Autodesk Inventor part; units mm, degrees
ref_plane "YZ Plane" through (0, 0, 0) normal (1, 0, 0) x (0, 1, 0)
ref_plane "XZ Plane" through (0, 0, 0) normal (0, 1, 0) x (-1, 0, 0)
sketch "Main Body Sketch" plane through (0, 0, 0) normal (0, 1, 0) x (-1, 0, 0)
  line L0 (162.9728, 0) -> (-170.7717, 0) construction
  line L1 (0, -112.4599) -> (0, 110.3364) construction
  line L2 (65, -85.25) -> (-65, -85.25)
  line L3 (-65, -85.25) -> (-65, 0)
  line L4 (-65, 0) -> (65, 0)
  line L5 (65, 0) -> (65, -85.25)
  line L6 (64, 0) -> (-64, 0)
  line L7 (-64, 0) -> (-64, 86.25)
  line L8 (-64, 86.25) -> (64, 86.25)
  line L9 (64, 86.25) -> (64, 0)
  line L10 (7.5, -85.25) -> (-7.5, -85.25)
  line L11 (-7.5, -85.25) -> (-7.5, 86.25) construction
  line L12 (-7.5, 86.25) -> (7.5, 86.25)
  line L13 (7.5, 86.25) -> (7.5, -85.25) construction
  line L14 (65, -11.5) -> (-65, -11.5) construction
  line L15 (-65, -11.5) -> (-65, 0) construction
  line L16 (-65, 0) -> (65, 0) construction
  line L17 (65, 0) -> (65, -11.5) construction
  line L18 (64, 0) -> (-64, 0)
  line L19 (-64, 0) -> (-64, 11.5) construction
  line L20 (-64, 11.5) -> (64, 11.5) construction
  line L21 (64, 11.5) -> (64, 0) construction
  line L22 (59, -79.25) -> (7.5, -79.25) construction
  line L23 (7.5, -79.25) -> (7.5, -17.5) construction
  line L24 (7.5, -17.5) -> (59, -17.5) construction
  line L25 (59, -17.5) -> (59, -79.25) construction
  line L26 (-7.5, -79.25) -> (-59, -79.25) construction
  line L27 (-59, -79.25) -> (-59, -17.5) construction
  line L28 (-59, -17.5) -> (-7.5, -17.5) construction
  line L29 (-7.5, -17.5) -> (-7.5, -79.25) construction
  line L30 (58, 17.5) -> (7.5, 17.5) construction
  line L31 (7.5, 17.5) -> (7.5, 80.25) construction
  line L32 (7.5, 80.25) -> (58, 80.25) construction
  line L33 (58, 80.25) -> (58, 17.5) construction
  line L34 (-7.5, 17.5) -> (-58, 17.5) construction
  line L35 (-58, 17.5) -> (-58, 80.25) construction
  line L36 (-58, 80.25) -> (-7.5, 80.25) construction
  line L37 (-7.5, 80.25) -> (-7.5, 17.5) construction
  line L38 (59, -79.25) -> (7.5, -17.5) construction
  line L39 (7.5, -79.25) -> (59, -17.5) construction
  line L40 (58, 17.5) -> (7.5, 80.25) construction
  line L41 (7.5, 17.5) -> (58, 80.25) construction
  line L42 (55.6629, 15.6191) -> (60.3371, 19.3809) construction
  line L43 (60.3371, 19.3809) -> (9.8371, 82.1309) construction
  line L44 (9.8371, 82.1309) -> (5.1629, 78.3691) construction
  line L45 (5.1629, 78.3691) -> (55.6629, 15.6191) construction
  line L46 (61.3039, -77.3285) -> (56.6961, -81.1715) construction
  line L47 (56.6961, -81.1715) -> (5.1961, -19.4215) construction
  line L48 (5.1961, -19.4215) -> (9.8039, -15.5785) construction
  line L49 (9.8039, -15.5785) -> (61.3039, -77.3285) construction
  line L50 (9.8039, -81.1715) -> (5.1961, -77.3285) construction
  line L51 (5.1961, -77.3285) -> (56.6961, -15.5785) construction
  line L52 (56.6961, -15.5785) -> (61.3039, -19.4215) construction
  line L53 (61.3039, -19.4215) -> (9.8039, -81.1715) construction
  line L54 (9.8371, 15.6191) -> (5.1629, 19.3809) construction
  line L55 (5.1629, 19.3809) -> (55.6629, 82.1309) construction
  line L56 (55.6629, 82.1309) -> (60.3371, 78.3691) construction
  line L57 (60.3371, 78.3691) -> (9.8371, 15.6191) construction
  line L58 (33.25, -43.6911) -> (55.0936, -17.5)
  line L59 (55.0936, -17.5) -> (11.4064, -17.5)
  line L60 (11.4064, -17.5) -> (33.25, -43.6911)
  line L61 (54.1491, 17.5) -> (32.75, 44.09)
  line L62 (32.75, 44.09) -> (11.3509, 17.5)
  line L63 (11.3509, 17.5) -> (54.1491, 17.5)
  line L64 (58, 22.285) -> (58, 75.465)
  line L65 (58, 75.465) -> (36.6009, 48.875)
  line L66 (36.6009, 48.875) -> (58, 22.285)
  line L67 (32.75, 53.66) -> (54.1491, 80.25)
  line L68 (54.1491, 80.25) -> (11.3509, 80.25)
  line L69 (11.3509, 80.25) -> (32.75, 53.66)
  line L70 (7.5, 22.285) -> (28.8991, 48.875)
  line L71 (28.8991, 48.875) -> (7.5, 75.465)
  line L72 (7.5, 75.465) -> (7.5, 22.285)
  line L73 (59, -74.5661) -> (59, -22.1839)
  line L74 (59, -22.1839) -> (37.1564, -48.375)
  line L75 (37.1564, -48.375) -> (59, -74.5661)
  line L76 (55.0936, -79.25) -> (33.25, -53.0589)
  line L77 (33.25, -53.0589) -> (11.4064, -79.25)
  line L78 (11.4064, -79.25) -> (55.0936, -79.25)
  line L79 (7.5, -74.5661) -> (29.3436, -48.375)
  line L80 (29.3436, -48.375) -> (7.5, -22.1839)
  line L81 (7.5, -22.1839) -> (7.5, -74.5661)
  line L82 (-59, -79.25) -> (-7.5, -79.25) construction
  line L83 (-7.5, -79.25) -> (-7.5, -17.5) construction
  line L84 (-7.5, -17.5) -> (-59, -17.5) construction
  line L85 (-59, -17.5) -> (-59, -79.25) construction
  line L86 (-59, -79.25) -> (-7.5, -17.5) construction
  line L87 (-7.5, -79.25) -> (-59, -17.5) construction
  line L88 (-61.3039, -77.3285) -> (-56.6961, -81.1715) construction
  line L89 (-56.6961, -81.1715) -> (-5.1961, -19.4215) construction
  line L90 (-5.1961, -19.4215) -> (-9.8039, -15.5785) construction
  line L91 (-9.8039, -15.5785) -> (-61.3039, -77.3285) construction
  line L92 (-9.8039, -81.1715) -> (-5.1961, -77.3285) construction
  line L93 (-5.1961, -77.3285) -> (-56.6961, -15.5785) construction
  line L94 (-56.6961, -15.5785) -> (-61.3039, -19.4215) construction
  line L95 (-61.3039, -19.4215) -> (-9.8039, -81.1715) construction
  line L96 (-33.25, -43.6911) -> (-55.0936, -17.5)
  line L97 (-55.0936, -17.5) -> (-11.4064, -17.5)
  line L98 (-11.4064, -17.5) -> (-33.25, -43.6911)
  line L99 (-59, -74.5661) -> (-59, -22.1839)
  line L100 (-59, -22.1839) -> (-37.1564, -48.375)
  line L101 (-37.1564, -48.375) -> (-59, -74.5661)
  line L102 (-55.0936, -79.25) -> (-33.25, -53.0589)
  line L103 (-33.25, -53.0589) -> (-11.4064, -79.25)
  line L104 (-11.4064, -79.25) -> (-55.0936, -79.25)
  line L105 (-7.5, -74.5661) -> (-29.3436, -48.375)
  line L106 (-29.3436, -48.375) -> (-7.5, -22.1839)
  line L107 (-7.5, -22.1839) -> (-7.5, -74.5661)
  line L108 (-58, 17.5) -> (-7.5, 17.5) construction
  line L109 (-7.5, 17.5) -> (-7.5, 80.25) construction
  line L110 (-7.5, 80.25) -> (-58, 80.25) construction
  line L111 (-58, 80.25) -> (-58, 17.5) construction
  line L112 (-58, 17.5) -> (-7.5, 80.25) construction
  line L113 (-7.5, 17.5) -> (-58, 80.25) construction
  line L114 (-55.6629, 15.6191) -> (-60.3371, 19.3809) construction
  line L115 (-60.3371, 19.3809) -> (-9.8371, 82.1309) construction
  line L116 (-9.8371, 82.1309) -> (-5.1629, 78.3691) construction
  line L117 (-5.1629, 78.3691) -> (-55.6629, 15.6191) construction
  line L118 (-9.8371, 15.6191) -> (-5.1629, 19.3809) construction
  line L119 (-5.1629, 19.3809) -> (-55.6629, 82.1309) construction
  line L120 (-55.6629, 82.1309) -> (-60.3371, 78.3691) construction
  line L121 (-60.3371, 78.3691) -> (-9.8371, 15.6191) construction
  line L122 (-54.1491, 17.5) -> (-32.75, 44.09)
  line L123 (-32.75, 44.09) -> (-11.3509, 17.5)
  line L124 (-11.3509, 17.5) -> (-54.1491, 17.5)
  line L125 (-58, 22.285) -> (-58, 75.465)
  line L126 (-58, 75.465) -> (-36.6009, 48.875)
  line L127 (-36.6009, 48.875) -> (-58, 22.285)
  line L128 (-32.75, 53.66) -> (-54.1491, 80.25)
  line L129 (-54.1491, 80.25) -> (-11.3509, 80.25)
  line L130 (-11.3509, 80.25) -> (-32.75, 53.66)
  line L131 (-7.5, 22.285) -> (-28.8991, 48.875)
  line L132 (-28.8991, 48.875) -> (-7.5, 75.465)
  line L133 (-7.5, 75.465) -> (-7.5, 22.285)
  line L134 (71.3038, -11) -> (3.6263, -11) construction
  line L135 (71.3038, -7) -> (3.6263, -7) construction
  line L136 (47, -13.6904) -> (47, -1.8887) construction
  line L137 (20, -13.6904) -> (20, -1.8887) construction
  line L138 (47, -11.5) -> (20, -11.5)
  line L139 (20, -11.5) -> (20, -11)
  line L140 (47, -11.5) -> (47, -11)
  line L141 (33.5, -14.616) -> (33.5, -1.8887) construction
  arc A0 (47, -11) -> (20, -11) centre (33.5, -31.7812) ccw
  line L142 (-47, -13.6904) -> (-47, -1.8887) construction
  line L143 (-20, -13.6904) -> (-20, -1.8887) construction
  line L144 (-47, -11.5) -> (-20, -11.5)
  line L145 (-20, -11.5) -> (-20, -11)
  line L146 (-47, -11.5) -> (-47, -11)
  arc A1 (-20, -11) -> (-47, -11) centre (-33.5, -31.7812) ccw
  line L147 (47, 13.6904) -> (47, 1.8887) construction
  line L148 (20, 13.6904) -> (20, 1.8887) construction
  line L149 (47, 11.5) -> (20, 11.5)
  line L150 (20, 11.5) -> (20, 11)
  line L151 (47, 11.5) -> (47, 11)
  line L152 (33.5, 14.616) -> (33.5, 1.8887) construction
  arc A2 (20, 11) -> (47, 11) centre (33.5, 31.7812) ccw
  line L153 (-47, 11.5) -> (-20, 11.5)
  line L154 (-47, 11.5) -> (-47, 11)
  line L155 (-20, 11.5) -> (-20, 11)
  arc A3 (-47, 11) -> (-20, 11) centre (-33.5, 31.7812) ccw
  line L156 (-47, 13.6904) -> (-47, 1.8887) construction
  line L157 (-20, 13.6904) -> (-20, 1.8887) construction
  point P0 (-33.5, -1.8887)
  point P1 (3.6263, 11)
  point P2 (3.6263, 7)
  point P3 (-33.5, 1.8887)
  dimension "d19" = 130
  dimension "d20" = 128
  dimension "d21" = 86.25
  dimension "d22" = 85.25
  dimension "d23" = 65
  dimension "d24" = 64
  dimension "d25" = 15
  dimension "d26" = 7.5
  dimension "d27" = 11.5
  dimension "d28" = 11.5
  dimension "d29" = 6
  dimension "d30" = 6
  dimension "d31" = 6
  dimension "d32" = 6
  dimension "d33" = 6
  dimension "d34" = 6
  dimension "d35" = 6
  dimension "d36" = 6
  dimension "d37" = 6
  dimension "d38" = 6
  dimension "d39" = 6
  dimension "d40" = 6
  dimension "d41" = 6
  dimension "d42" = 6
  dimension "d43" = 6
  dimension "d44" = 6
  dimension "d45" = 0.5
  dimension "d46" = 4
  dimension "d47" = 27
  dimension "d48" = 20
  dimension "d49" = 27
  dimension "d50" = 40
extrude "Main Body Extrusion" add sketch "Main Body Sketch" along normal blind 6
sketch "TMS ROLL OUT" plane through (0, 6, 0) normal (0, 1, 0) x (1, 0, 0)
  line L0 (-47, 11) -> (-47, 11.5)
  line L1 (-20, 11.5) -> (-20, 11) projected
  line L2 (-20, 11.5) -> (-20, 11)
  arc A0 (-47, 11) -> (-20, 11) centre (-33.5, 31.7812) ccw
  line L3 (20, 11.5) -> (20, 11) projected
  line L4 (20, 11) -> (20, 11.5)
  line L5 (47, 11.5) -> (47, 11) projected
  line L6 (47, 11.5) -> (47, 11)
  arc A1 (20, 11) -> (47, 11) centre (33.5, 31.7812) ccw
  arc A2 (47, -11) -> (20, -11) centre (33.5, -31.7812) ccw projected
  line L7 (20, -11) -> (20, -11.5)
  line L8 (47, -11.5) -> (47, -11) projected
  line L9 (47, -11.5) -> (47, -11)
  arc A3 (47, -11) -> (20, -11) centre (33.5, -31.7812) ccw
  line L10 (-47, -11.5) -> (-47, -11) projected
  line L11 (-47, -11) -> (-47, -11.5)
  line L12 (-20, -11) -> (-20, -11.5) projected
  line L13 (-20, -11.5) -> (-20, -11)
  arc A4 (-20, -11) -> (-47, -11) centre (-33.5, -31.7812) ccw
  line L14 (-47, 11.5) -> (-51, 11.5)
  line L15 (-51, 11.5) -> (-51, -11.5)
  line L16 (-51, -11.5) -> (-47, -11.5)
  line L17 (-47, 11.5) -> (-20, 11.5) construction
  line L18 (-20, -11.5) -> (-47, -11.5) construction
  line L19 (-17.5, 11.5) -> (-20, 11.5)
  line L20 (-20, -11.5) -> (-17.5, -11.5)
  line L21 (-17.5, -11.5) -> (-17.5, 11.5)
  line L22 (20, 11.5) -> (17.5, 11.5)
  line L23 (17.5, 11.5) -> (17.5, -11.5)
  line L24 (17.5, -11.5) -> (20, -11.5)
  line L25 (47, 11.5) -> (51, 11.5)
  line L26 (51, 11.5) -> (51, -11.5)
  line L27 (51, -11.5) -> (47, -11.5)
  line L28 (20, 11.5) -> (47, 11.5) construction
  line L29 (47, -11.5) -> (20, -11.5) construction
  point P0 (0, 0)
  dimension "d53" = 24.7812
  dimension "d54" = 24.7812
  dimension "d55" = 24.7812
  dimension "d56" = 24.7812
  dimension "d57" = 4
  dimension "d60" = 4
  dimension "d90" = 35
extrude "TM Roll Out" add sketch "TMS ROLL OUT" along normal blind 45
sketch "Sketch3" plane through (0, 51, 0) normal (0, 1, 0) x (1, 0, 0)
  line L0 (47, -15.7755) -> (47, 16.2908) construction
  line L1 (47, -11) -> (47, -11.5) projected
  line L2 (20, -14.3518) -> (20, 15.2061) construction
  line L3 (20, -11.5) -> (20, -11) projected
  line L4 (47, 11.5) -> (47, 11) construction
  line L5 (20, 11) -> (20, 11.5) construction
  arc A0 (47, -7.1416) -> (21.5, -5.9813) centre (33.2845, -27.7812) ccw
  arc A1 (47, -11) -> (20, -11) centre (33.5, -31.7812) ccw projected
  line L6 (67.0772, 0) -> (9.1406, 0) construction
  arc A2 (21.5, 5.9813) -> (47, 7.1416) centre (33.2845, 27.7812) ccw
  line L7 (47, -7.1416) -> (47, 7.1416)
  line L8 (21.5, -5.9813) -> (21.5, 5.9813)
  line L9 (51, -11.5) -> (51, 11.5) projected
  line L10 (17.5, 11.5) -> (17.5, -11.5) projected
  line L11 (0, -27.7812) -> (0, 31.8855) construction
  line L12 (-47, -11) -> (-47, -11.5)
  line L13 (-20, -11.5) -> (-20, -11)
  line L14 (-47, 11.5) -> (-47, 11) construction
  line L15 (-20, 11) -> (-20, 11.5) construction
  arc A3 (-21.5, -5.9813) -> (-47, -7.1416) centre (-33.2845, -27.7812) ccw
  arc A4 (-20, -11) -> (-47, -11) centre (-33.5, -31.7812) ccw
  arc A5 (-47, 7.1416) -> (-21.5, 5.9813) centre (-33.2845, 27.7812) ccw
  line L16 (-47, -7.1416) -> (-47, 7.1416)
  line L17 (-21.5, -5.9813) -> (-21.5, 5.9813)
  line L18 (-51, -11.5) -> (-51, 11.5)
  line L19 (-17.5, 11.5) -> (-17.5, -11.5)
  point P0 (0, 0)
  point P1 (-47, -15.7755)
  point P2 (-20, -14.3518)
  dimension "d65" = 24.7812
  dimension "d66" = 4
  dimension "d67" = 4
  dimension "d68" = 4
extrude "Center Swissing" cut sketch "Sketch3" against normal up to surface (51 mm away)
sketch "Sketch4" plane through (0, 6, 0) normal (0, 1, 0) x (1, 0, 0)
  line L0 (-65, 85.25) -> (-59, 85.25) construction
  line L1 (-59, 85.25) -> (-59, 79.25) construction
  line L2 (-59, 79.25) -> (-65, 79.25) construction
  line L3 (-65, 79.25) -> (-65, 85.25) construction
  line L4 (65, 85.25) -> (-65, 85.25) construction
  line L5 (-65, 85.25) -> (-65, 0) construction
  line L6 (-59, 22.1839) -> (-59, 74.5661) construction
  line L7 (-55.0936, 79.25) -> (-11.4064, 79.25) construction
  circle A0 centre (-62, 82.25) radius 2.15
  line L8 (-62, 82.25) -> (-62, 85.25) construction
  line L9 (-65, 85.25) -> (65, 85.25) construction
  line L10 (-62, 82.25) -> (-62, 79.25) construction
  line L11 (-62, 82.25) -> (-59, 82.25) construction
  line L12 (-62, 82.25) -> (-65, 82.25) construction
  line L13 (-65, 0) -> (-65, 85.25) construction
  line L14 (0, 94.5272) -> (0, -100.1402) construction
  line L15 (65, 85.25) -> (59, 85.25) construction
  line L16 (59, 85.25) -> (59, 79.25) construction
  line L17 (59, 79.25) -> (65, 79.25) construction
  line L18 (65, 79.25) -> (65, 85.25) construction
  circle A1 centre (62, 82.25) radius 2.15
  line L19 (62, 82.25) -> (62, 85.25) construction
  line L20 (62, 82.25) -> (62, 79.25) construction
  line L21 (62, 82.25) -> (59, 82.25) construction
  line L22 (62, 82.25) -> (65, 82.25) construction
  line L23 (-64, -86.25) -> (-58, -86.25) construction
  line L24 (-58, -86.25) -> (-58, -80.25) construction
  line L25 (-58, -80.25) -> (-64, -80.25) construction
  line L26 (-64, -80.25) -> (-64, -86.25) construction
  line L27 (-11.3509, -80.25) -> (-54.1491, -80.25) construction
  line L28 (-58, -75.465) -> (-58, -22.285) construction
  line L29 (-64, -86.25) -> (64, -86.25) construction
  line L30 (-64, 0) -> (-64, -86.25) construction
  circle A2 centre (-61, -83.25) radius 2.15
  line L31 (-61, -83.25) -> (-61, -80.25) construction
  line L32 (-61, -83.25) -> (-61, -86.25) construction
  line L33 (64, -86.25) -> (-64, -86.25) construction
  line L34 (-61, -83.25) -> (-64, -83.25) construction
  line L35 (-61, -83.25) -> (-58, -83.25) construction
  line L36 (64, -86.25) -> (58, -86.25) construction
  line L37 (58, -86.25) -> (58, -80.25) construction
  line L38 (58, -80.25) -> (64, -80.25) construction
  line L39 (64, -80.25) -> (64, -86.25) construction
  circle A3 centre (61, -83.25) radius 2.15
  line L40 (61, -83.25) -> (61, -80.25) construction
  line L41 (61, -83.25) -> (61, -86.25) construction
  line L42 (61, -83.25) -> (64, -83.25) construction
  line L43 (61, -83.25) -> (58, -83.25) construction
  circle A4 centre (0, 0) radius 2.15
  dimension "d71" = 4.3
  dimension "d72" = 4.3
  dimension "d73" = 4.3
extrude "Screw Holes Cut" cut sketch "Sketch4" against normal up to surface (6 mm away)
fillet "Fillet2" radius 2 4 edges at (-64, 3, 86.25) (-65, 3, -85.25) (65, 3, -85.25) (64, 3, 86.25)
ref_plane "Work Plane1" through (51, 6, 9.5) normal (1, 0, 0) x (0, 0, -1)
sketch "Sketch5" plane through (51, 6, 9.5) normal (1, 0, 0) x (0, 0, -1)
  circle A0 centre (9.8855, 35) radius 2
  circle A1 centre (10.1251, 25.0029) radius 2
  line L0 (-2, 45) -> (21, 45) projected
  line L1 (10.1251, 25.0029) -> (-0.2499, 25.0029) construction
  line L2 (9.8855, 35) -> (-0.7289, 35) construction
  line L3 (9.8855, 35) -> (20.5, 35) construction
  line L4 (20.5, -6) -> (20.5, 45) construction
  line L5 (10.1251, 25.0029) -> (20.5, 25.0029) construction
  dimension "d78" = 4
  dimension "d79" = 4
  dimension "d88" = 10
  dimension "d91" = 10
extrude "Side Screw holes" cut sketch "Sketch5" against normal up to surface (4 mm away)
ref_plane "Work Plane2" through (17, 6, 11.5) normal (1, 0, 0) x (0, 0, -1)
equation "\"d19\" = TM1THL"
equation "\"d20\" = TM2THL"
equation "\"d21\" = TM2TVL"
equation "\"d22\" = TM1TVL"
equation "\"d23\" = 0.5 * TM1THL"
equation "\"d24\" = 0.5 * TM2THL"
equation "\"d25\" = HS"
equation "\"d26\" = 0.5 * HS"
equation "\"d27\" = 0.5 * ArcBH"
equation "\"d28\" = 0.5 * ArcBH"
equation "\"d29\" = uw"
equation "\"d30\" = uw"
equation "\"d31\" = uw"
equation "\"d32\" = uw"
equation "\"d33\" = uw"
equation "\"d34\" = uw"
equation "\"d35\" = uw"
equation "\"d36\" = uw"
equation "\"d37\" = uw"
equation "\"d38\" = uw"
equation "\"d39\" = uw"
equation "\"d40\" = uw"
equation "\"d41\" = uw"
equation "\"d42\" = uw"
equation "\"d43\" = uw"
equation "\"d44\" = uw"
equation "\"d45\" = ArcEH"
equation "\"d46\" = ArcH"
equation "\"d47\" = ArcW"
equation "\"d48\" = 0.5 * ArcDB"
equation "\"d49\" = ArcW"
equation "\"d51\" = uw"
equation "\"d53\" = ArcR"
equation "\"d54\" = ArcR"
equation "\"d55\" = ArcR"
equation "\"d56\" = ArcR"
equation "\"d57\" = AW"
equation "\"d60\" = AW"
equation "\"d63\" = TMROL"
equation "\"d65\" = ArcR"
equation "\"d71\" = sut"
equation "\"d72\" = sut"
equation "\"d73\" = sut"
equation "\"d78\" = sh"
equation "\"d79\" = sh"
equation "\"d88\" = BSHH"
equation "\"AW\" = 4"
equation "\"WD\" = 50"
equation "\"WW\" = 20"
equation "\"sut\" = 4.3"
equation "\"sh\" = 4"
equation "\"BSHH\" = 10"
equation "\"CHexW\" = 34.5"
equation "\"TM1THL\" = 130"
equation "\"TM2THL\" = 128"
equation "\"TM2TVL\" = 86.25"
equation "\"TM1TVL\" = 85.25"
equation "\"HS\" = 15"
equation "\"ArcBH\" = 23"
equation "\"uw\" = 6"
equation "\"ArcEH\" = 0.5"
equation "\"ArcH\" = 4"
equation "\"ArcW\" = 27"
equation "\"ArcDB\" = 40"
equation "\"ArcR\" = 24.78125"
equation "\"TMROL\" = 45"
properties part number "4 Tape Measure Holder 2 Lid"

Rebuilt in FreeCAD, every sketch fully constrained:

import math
import FreeCAD as App
import Part
import Sketcher


def edges_at(feature, points):
    """Names of the edges that pass closest to the given points."""
    edges = feature.Shape.Edges
    near = lambda p: min(range(len(edges)), key=lambda i: edges[i].distToShape(Part.Vertex(*p))[0])
    return sorted({f"Edge{near(p) + 1}" for p in points})

doc = App.newDocument("Part")
body = doc.addObject("PartDesign::Body", "Body")

sketch1 = body.newObject("Sketcher::SketchObject", "Sketch")
sketch1.AttachmentSupport = (doc.getObject("XZ_Plane"), [""])
sketch1.MapMode = "FlatFace"
sketch1.addGeometry(Part.LineSegment(App.Vector(-65, -85.2, 0), App.Vector(-65, 0, 0)), False)
sketch1.addGeometry(Part.LineSegment(App.Vector(-65, 0, 0), App.Vector(-64, 0, 0)), False)
sketch1.addGeometry(Part.LineSegment(App.Vector(-64, 0, 0), App.Vector(-64, 86.2, 0)), False)
sketch1.addGeometry(Part.LineSegment(App.Vector(-64, 86.2, 0), App.Vector(64, 86.2, 0)), False)
sketch1.addGeometry(Part.LineSegment(App.Vector(64, 86.2, 0), App.Vector(64, 0, 0)), False)
sketch1.addGeometry(Part.LineSegment(App.Vector(64, 0, 0), App.Vector(65, 0, 0)), False)
sketch1.addGeometry(Part.LineSegment(App.Vector(65, 0, 0), App.Vector(65, -85.2, 0)), False)
sketch1.addGeometry(Part.LineSegment(App.Vector(65, -85.2, 0), App.Vector(-65, -85.2, 0)), False)
sketch1.addGeometry(Part.LineSegment(App.Vector(11.4, -79.2, 0), App.Vector(55.1, -79.2, 0)), False)
sketch1.addGeometry(Part.LineSegment(App.Vector(55.1, -79.2, 0), App.Vector(33.2, -53.1, 0)), False)
sketch1.addGeometry(Part.LineSegment(App.Vector(33.2, -53.1, 0), App.Vector(11.4, -79.2, 0)), False)
sketch1.addGeometry(Part.LineSegment(App.Vector(37.2, -48.4, 0), App.Vector(59, -74.6, 0)), False)
sketch1.addGeometry(Part.LineSegment(App.Vector(59, -74.6, 0), App.Vector(59, -22.2, 0)), False)
sketch1.addGeometry(Part.LineSegment(App.Vector(59, -22.2, 0), App.Vector(37.2, -48.4, 0)), False)
sketch1.addGeometry(Part.LineSegment(App.Vector(7.5, -22.2, 0), App.Vector(7.5, -74.6, 0)), False)
sketch1.addGeometry(Part.LineSegment(App.Vector(7.5, -74.6, 0), App.Vector(29.3, -48.4, 0)), False)
sketch1.addGeometry(Part.LineSegment(App.Vector(29.3, -48.4, 0), App.Vector(7.5, -22.2, 0)), False)
sketch1.addGeometry(Part.LineSegment(App.Vector(11.4, -17.5, 0), App.Vector(33.2, -43.7, 0)), False)
sketch1.addGeometry(Part.LineSegment(App.Vector(33.2, -43.7, 0), App.Vector(55.1, -17.5, 0)), False)
sketch1.addGeometry(Part.LineSegment(App.Vector(55.1, -17.5, 0), App.Vector(11.4, -17.5, 0)), False)
sketch1.addGeometry(Part.LineSegment(App.Vector(20, -11.5, 0), App.Vector(47, -11.5, 0)), False)
sketch1.addGeometry(Part.LineSegment(App.Vector(47, -11.5, 0), App.Vector(47, -11, 0)), False)
sketch1.addGeometry(Part.ArcOfCircle(Part.Circle(App.Vector(33.5, -31.8, 0), App.Vector(0, 0, 1), 24.8), math.radians(57), math.radians(123)), False)
sketch1.addGeometry(Part.LineSegment(App.Vector(20, -11, 0), App.Vector(20, -11.5, 0)), False)
sketch1.addGeometry(Part.LineSegment(App.Vector(-29.3, -48.4, 0), App.Vector(-7.5, -74.6, 0)), False)
sketch1.addGeometry(Part.LineSegment(App.Vector(-7.5, -74.6, 0), App.Vector(-7.5, -22.2, 0)), False)
sketch1.addGeometry(Part.LineSegment(App.Vector(-7.5, -22.2, 0), App.Vector(-29.3, -48.4, 0)), False)
sketch1.addGeometry(Part.LineSegment(App.Vector(-33.2, -53.1, 0), App.Vector(-55.1, -79.2, 0)), False)
sketch1.addGeometry(Part.LineSegment(App.Vector(-55.1, -79.2, 0), App.Vector(-11.4, -79.2, 0)), False)
sketch1.addGeometry(Part.LineSegment(App.Vector(-11.4, -79.2, 0), App.Vector(-33.2, -53.1, 0)), False)
sketch1.addGeometry(Part.LineSegment(App.Vector(-59, -22.2, 0), App.Vector(-59, -74.6, 0)), False)
sketch1.addGeometry(Part.LineSegment(App.Vector(-59, -74.6, 0), App.Vector(-37.2, -48.4, 0)), False)
sketch1.addGeometry(Part.LineSegment(App.Vector(-37.2, -48.4, 0), App.Vector(-59, -22.2, 0)), False)
sketch1.addGeometry(Part.LineSegment(App.Vector(-55.1, -17.5, 0), App.Vector(-33.2, -43.7, 0)), False)
sketch1.addGeometry(Part.LineSegment(App.Vector(-33.2, -43.7, 0), App.Vector(-11.4, -17.5, 0)), False)
sketch1.addGeometry(Part.LineSegment(App.Vector(-11.4, -17.5, 0), App.Vector(-55.1, -17.5, 0)), False)
sketch1.addGeometry(Part.LineSegment(App.Vector(-47, -11, 0), App.Vector(-47, -11.5, 0)), False)
sketch1.addGeometry(Part.LineSegment(App.Vector(-47, -11.5, 0), App.Vector(-20, -11.5, 0)), False)
sketch1.addGeometry(Part.LineSegment(App.Vector(-20, -11.5, 0), App.Vector(-20, -11, 0)), False)
sketch1.addGeometry(Part.ArcOfCircle(Part.Circle(App.Vector(-33.5, -31.8, 0), App.Vector(0, 0, 1), 24.8), math.radians(57), math.radians(123)), False)
sketch1.addGeometry(Part.LineSegment(App.Vector(-32.8, 53.7, 0), App.Vector(-11.4, 80.2, 0)), False)
sketch1.addGeometry(Part.LineSegment(App.Vector(-11.4, 80.2, 0), App.Vector(-54.1, 80.2, 0)), False)
sketch1.addGeometry(Part.LineSegment(App.Vector(-54.1, 80.2, 0), App.Vector(-32.8, 53.7, 0)), False)
sketch1.addGeometry(Part.LineSegment(App.Vector(47, 11, 0), App.Vector(47, 11.5, 0)), False)
sketch1.addGeometry(Part.LineSegment(App.Vector(47, 11.5, 0), App.Vector(20, 11.5, 0)), False)
sketch1.addGeometry(Part.LineSegment(App.Vector(20, 11.5, 0), App.Vector(20, 11, 0)), False)
sketch1.addGeometry(Part.ArcOfCircle(Part.Circle(App.Vector(33.5, 31.8, 0), App.Vector(0, 0, 1), 24.8), math.radians(-123), math.radians(-57)), False)
sketch1.addGeometry(Part.LineSegment(App.Vector(11.4, 17.5, 0), App.Vector(54.1, 17.5, 0)), False)
sketch1.addGeometry(Part.LineSegment(App.Vector(54.1, 17.5, 0), App.Vector(32.8, 44.1, 0)), False)
sketch1.addGeometry(Part.LineSegment(App.Vector(32.8, 44.1, 0), App.Vector(11.4, 17.5, 0)), False)
sketch1.addGeometry(Part.LineSegment(App.Vector(36.6, 48.9, 0), App.Vector(58, 22.3, 0)), False)
sketch1.addGeometry(Part.LineSegment(App.Vector(58, 22.3, 0), App.Vector(58, 75.5, 0)), False)
sketch1.addGeometry(Part.LineSegment(App.Vector(58, 75.5, 0), App.Vector(36.6, 48.9, 0)), False)
sketch1.addGeometry(Part.LineSegment(App.Vector(11.4, 80.2, 0), App.Vector(32.8, 53.7, 0)), False)
sketch1.addGeometry(Part.LineSegment(App.Vector(32.8, 53.7, 0), App.Vector(54.1, 80.2, 0)), False)
sketch1.addGeometry(Part.LineSegment(App.Vector(54.1, 80.2, 0), App.Vector(11.4, 80.2, 0)), False)
sketch1.addGeometry(Part.LineSegment(App.Vector(7.5, 75.5, 0), App.Vector(7.5, 22.3, 0)), False)
sketch1.addGeometry(Part.LineSegment(App.Vector(7.5, 22.3, 0), App.Vector(28.9, 48.9, 0)), False)
sketch1.addGeometry(Part.LineSegment(App.Vector(28.9, 48.9, 0), App.Vector(7.5, 75.5, 0)), False)
sketch1.addGeometry(Part.LineSegment(App.Vector(-20, 11.5, 0), App.Vector(-47, 11.5, 0)), False)
sketch1.addGeometry(Part.LineSegment(App.Vector(-47, 11.5, 0), App.Vector(-47, 11, 0)), False)
sketch1.addGeometry(Part.ArcOfCircle(Part.Circle(App.Vector(-33.5, 31.8, 0), App.Vector(0, 0, 1), 24.8), math.radians(-123), math.radians(-57)), False)
sketch1.addGeometry(Part.LineSegment(App.Vector(-20, 11, 0), App.Vector(-20, 11.5, 0)), False)
sketch1.addGeometry(Part.LineSegment(App.Vector(-32.8, 44.1, 0), App.Vector(-54.1, 17.5, 0)), False)
sketch1.addGeometry(Part.LineSegment(App.Vector(-54.1, 17.5, 0), App.Vector(-11.4, 17.5, 0)), False)
sketch1.addGeometry(Part.LineSegment(App.Vector(-11.4, 17.5, 0), App.Vector(-32.8, 44.1, 0)), False)
sketch1.addGeometry(Part.LineSegment(App.Vector(-28.9, 48.9, 0), App.Vector(-7.5, 22.3, 0)), False)
sketch1.addGeometry(Part.LineSegment(App.Vector(-7.5, 22.3, 0), App.Vector(-7.5, 75.5, 0)), False)
sketch1.addGeometry(Part.LineSegment(App.Vector(-7.5, 75.5, 0), App.Vector(-28.9, 48.9, 0)), False)
sketch1.addGeometry(Part.LineSegment(App.Vector(-58, 75.5, 0), App.Vector(-58, 22.3, 0)), False)
sketch1.addGeometry(Part.LineSegment(App.Vector(-58, 22.3, 0), App.Vector(-36.6, 48.9, 0)), False)
sketch1.addGeometry(Part.LineSegment(App.Vector(-36.6, 48.9, 0), App.Vector(-58, 75.5, 0)), False)
sketch1.addConstraint(Sketcher.Constraint("Coincident", 0, 2, 1, 1))
sketch1.addConstraint(Sketcher.Constraint("Coincident", 1, 2, 2, 1))
sketch1.addConstraint(Sketcher.Constraint("Coincident", 2, 2, 3, 1))
sketch1.addConstraint(Sketcher.Constraint("Coincident", 3, 2, 4, 1))
sketch1.addConstraint(Sketcher.Constraint("Coincident", 4, 2, 5, 1))
sketch1.addConstraint(Sketcher.Constraint("Coincident", 5, 2, 6, 1))
sketch1.addConstraint(Sketcher.Constraint("Coincident", 6, 2, 7, 1))
sketch1.addConstraint(Sketcher.Constraint("Coincident", 7, 2, 0, 1))
sketch1.addConstraint(Sketcher.Constraint("Coincident", 8, 2, 9, 1))
sketch1.addConstraint(Sketcher.Constraint("Coincident", 9, 2, 10, 1))
sketch1.addConstraint(Sketcher.Constraint("Coincident", 10, 2, 8, 1))
sketch1.addConstraint(Sketcher.Constraint("Coincident", 11, 2, 12, 1))
sketch1.addConstraint(Sketcher.Constraint("Coincident", 12, 2, 13, 1))
sketch1.addConstraint(Sketcher.Constraint("Coincident", 13, 2, 11, 1))
sketch1.addConstraint(Sketcher.Constraint("Coincident", 14, 2, 15, 1))
sketch1.addConstraint(Sketcher.Constraint("Coincident", 15, 2, 16, 1))
sketch1.addConstraint(Sketcher.Constraint("Coincident", 16, 2, 14, 1))
sketch1.addConstraint(Sketcher.Constraint("Coincident", 17, 2, 18, 1))
sketch1.addConstraint(Sketcher.Constraint("Coincident", 18, 2, 19, 1))
sketch1.addConstraint(Sketcher.Constraint("Coincident", 19, 2, 17, 1))
sketch1.addConstraint(Sketcher.Constraint("Coincident", 20, 2, 21, 1))
sketch1.addConstraint(Sketcher.Constraint("Coincident", 21, 2, 22, 1))
sketch1.addConstraint(Sketcher.Constraint("Coincident", 22, 2, 23, 1))
sketch1.addConstraint(Sketcher.Constraint("Coincident", 23, 2, 20, 1))
sketch1.addConstraint(Sketcher.Constraint("Coincident", 24, 2, 25, 1))
sketch1.addConstraint(Sketcher.Constraint("Coincident", 25, 2, 26, 1))
sketch1.addConstraint(Sketcher.Constraint("Coincident", 26, 2, 24, 1))
sketch1.addConstraint(Sketcher.Constraint("Coincident", 27, 2, 28, 1))
sketch1.addConstraint(Sketcher.Constraint("Coincident", 28, 2, 29, 1))
sketch1.addConstraint(Sketcher.Constraint("Coincident", 29, 2, 27, 1))
sketch1.addConstraint(Sketcher.Constraint("Coincident", 30, 2, 31, 1))
sketch1.addConstraint(Sketcher.Constraint("Coincident", 31, 2, 32, 1))
sketch1.addConstraint(Sketcher.Constraint("Coincident", 32, 2, 30, 1))
sketch1.addConstraint(Sketcher.Constraint("Coincident", 33, 2, 34, 1))
sketch1.addConstraint(Sketcher.Constraint("Coincident", 34, 2, 35, 1))
sketch1.addConstraint(Sketcher.Constraint("Coincident", 35, 2, 33, 1))
sketch1.addConstraint(Sketcher.Constraint("Coincident", 36, 2, 37, 1))
sketch1.addConstraint(Sketcher.Constraint("Coincident", 37, 2, 38, 1))
sketch1.addConstraint(Sketcher.Constraint("Coincident", 38, 2, 39, 1))
sketch1.addConstraint(Sketcher.Constraint("Coincident", 39, 2, 36, 1))
sketch1.addConstraint(Sketcher.Constraint("Coincident", 40, 2, 41, 1))
sketch1.addConstraint(Sketcher.Constraint("Coincident", 41, 2, 42, 1))
sketch1.addConstraint(Sketcher.Constraint("Coincident", 42, 2, 40, 1))
sketch1.addConstraint(Sketcher.Constraint("Coincident", 43, 2, 44, 1))
sketch1.addConstraint(Sketcher.Constraint("Coincident", 44, 2, 45, 1))
sketch1.addConstraint(Sketcher.Constraint("Coincident", 45, 2, 46, 1))
sketch1.addConstraint(Sketcher.Constraint("Coincident", 46, 2, 43, 1))
sketch1.addConstraint(Sketcher.Constraint("Coincident", 47, 2, 48, 1))
sketch1.addConstraint(Sketcher.Constraint("Coincident", 48, 2, 49, 1))
sketch1.addConstraint(Sketcher.Constraint("Coincident", 49, 2, 47, 1))
sketch1.addConstraint(Sketcher.Constraint("Coincident", 50, 2, 51, 1))
sketch1.addConstraint(Sketcher.Constraint("Coincident", 51, 2, 52, 1))
sketch1.addConstraint(Sketcher.Constraint("Coincident", 52, 2, 50, 1))
sketch1.addConstraint(Sketcher.Constraint("Coincident", 53, 2, 54, 1))
sketch1.addConstraint(Sketcher.Constraint("Coincident", 54, 2, 55, 1))
sketch1.addConstraint(Sketcher.Constraint("Coincident", 55, 2, 53, 1))
sketch1.addConstraint(Sketcher.Constraint("Coincident", 56, 2, 57, 1))
sketch1.addConstraint(Sketcher.Constraint("Coincident", 57, 2, 58, 1))
sketch1.addConstraint(Sketcher.Constraint("Coincident", 58, 2, 56, 1))
sketch1.addConstraint(Sketcher.Constraint("Coincident", 59, 2, 60, 1))
sketch1.addConstraint(Sketcher.Constraint("Coincident", 60, 2, 61, 1))
sketch1.addConstraint(Sketcher.Constraint("Coincident", 61, 2, 62, 1))
sketch1.addConstraint(Sketcher.Constraint("Coincident", 62, 2, 59, 1))
sketch1.addConstraint(Sketcher.Constraint("Coincident", 63, 2, 64, 1))
sketch1.addConstraint(Sketcher.Constraint("Coincident", 64, 2, 65, 1))
sketch1.addConstraint(Sketcher.Constraint("Coincident", 65, 2, 63, 1))
sketch1.addConstraint(Sketcher.Constraint("Coincident", 66, 2, 67, 1))
sketch1.addConstraint(Sketcher.Constraint("Coincident", 67, 2, 68, 1))
sketch1.addConstraint(Sketcher.Constraint("Coincident", 68, 2, 66, 1))
sketch1.addConstraint(Sketcher.Constraint("Coincident", 69, 2, 70, 1))
sketch1.addConstraint(Sketcher.Constraint("Coincident", 70, 2, 71, 1))
sketch1.addConstraint(Sketcher.Constraint("Coincident", 71, 2, 69, 1))
sketch1.addConstraint(Sketcher.Constraint("Vertical", 0))
sketch1.addConstraint(Sketcher.Constraint("Horizontal", 1))
sketch1.addConstraint(Sketcher.Constraint("Vertical", 2))
sketch1.addConstraint(Sketcher.Constraint("Horizontal", 3))
sketch1.addConstraint(Sketcher.Constraint("Vertical", 4))
sketch1.addConstraint(Sketcher.Constraint("Horizontal", 5))
sketch1.addConstraint(Sketcher.Constraint("Vertical", 6))
sketch1.addConstraint(Sketcher.Constraint("Horizontal", 7))
sketch1.addConstraint(Sketcher.Constraint("Horizontal", 8))
sketch1.addConstraint(Sketcher.Constraint("Vertical", 12))
sketch1.addConstraint(Sketcher.Constraint("Vertical", 14))
sketch1.addConstraint(Sketcher.Constraint("Horizontal", 19))
sketch1.addConstraint(Sketcher.Constraint("Horizontal", 20))
sketch1.addConstraint(Sketcher.Constraint("Vertical", 21))
sketch1.addConstraint(Sketcher.Constraint("Vertical", 23))
sketch1.addConstraint(Sketcher.Constraint("Vertical", 25))
sketch1.addConstraint(Sketcher.Constraint("Horizontal", 28))
sketch1.addConstraint(Sketcher.Constraint("Vertical", 30))
sketch1.addConstraint(Sketcher.Constraint("Horizontal", 35))
sketch1.addConstraint(Sketcher.Constraint("Vertical", 36))
sketch1.addConstraint(Sketcher.Constraint("Horizontal", 37))
sketch1.addConstraint(Sketcher.Constraint("Vertical", 38))
sketch1.addConstraint(Sketcher.Constraint("Horizontal", 41))
sketch1.addConstraint(Sketcher.Constraint("Vertical", 43))
sketch1.addConstraint(Sketcher.Constraint("Horizontal", 44))
sketch1.addConstraint(Sketcher.Constraint("Vertical", 45))
sketch1.addConstraint(Sketcher.Constraint("Horizontal", 47))
sketch1.addConstraint(Sketcher.Constraint("Vertical", 51))
sketch1.addConstraint(Sketcher.Constraint("Horizontal", 55))
sketch1.addConstraint(Sketcher.Constraint("Vertical", 56))
sketch1.addConstraint(Sketcher.Constraint("Horizontal", 59))
sketch1.addConstraint(Sketcher.Constraint("Vertical", 60))
sketch1.addConstraint(Sketcher.Constraint("Vertical", 62))
sketch1.addConstraint(Sketcher.Constraint("Horizontal", 64))
sketch1.addConstraint(Sketcher.Constraint("Vertical", 67))
sketch1.addConstraint(Sketcher.Constraint("Vertical", 69))
sketch1.addConstraint(Sketcher.Constraint("Equal", 22, 39))
sketch1.addConstraint(Sketcher.Constraint("Equal", 39, 46))
sketch1.addConstraint(Sketcher.Constraint("Equal", 46, 61))
sketch1.addConstraint(Sketcher.Constraint("Symmetric", 39, 3, 46, 3, -1, 1))
sketch1.addConstraint(Sketcher.Constraint("Symmetric", 22, 3, 61, 3, -1, 1))
sketch1.addConstraint(Sketcher.Constraint("Symmetric", 1, 2, 4, 2, -1, 1))
sketch1.addConstraint(Sketcher.Constraint("Symmetric", 36, 2, 43, 2, -1, 1))
sketch1.addConstraint(Sketcher.Constraint("Symmetric", 20, 2, 59, 2, -1, 1))
sketch1.addConstraint(Sketcher.Constraint("Symmetric", 22, 3, 39, 3, -2))
sketch1.addConstraint(Sketcher.Constraint("Symmetric", 0, 2, 5, 2, -2))
sketch1.addConstraint(Sketcher.Constraint("Symmetric", 14, 2, 24, 2, -2))
sketch1.addConstraint(Sketcher.Constraint("Symmetric", 15, 2, 26, 2, -2))
sketch1.addConstraint(Sketcher.Constraint("Symmetric", 8, 2, 27, 2, -2))
sketch1.addConstraint(Sketcher.Constraint("Symmetric", 9, 2, 29, 2, -2))
sketch1.addConstraint(Sketcher.Constraint("Symmetric", 11, 2, 30, 2, -2))
sketch1.addConstraint(Sketcher.Constraint("Symmetric", 13, 2, 31, 2, -2))
sketch1.addConstraint(Sketcher.Constraint("Symmetric", 17, 2, 33, 2, -2))
sketch1.addConstraint(Sketcher.Constraint("Symmetric", 19, 2, 34, 2, -2))
sketch1.addConstraint(Sketcher.Constraint("Symmetric", 20, 2, 36, 2, -2))
sketch1.addConstraint(Sketcher.Constraint("Symmetric", 42, 2, 53, 2, -2))
sketch1.addConstraint(Sketcher.Constraint("Symmetric", 41, 2, 54, 2, -2))
sketch1.addConstraint(Sketcher.Constraint("Symmetric", 47, 2, 63, 2, -2))
sketch1.addConstraint(Sketcher.Constraint("Symmetric", 48, 2, 65, 2, -2))
sketch1.addConstraint(Sketcher.Constraint("Symmetric", 56, 2, 66, 2, -2))
sketch1.addConstraint(Sketcher.Constraint("Symmetric", 57, 2, 68, 2, -2))
sketch1.addConstraint(Sketcher.Constraint("Symmetric", 50, 2, 69, 2, -2))
sketch1.addConstraint(Sketcher.Constraint("Symmetric", 52, 2, 70, 2, -2))
sketch1.addConstraint(Sketcher.Constraint("Parallel", 9, 11))
sketch1.addConstraint(Sketcher.Constraint("Parallel", 10, 13))
sketch1.addConstraint(Sketcher.Constraint("Parallel", 13, 15))
sketch1.addConstraint(Sketcher.Constraint("Parallel", 11, 16))
sketch1.addConstraint(Sketcher.Constraint("Parallel", 16, 17))
sketch1.addConstraint(Sketcher.Constraint("Parallel", 15, 18))
sketch1.addConstraint(Sketcher.Constraint("Parallel", 17, 24))
sketch1.addConstraint(Sketcher.Constraint("Parallel", 18, 26))
sketch1.addConstraint(Sketcher.Constraint("Parallel", 24, 29))
sketch1.addConstraint(Sketcher.Constraint("Parallel", 29, 32))
sketch1.addConstraint(Sketcher.Constraint("Parallel", 32, 33))
sketch1.addConstraint(Sketcher.Constraint("Parallel", 42, 48))
sketch1.addConstraint(Sketcher.Constraint("Parallel", 40, 49))
sketch1.addConstraint(Sketcher.Constraint("Parallel", 48, 50))
sketch1.addConstraint(Sketcher.Constraint("Parallel", 49, 52))
sketch1.addConstraint(Sketcher.Constraint("Parallel", 50, 53))
sketch1.addConstraint(Sketcher.Constraint("Parallel", 52, 54))
sketch1.addConstraint(Sketcher.Constraint("Parallel", 54, 57))
sketch1.addConstraint(Sketcher.Constraint("Parallel", 53, 58))
sketch1.addConstraint(Sketcher.Constraint("Parallel", 58, 65))
sketch1.addConstraint(Sketcher.Constraint("Parallel", 63, 68))
sketch1.addConstraint(Sketcher.Constraint("Parallel", 66, 71))
sketch1.addConstraint(Sketcher.Constraint("Horizontal", 11, 2, 14, 2))
sketch1.addConstraint(Sketcher.Constraint("Horizontal", 13, 2, 15, 2))
sketch1.addConstraint(Sketcher.Constraint("Horizontal", 21, 2, 22, 2))
sketch1.addConstraint(Sketcher.Constraint("Horizontal", 22, 2, 38, 2))
sketch1.addConstraint(Sketcher.Constraint("Horizontal", 45, 2, 46, 2))
sketch1.addConstraint(Sketcher.Constraint("Horizontal", 50, 2, 56, 2))
sketch1.addConstraint(Sketcher.Constraint("Horizontal", 52, 2, 57, 2))
sketch1.addConstraint(Sketcher.Constraint("Horizontal", 60, 2, 61, 2))
sketch1.addConstraint(Sketcher.Constraint("Vertical", 9, 2, 17, 2))
sketch1.addConstraint(Sketcher.Constraint("Vertical", 8, 2, 18, 2))
sketch1.addConstraint(Sketcher.Constraint("Vertical", 48, 2, 53, 2))
sketch1.addConstraint(Sketcher.Constraint("Vertical", 47, 2, 54, 2))
sketch1.addConstraint(Sketcher.Constraint("Vertical", 16, 2, 56, 2))
sketch1.addConstraint(Sketcher.Constraint("Equal", 10, 11))
sketch1.addConstraint(Sketcher.Constraint("Equal", 49, 50))
sketch1.addConstraint(Sketcher.Constraint("DistanceX", 3, 1, 3, 2, 128.0))
sketch1.addConstraint(Sketcher.Constraint("DistanceX", 7, 2, 7, 1, 130.0))
sketch1.addConstraint(Sketcher.Constraint("DistanceX", 20, 1, 20, 2, 27.0))
sketch1.addConstraint(Sketcher.Constraint("DistanceY", 21, 1, 21, 2, 0.5))
sketch1.addConstraint(Sketcher.Constraint("DistanceX", -1, 1, 22, 2, 20.0))
sketch1.addConstraint(Sketcher.Constraint("DistanceY", 0, 1, 0, 2, 85.25))
sketch1.addConstraint(Sketcher.Constraint("DistanceY", 2, 1, 2, 2, 86.25))
sketch1.addConstraint(Sketcher.Constraint("DistanceX", -1, 1, 14, 2, 7.5))
sketch1.addConstraint(Sketcher.Constraint("DistanceY", 20, 2, -1, 1, 11.5))
sketch1.addConstraint(Sketcher.Constraint("DistanceX", -1, 1, 11, 2, 59.0))
sketch1.addConstraint(Sketcher.Constraint("DistanceX", -1, 1, 50, 2, 58.0))
sketch1.addConstraint(Sketcher.Constraint("DistanceY", 51, 1, 51, 2, 53.18))
sketch1.addConstraint(Sketcher.Constraint("DistanceY", 18, 2, -1, 1, 17.5))
sketch1.addConstraint(Sketcher.Constraint("DistanceY", -1, 1, 47, 2, 17.5))
sketch1.addConstraint(Sketcher.Constraint("Radius", 22, 24.7812))
sketch1.addConstraint(Sketcher.Constraint("DistanceY", 8, 2, -1, 1, 79.25))
sketch1.addConstraint(Sketcher.Constraint("DistanceX", -1, 1, 9, 2, 33.25))
sketch1.addConstraint(Sketcher.Constraint("DistanceY", -1, 1, 40, 2, 80.25))
sketch1.addConstraint(Sketcher.Constraint("DistanceX", 42, 2, -1, 1, 32.75))
sketch1.addConstraint(Sketcher.Constraint("DistanceX", 8, 1, 8, 2, 43.6872))
sketch1.addConstraint(Sketcher.Constraint("DistanceX", 41, 2, 41, 1, 42.7982))
sketch1.addConstraint(Sketcher.Constraint("DistanceY", 12, 1, 12, 2, 52.3822))
sketch1.addConstraint(Sketcher.Constraint("DistanceY", 11, 2, -1, 1, 74.566))
sketch1.addConstraint(Sketcher.Constraint("DistanceY", -1, 1, 50, 2, 22.285))
pad1 = body.newObject("PartDesign::Pad", "Pad")
pad1.Profile = sketch1
pad1.Length = 6
pad1.Reversed = True

sketch2 = body.newObject("Sketcher::SketchObject", "Sketch001")
sketch2.AttachmentSupport = (doc.getObject("XZ_Plane"), [""])
sketch2.MapMode = "FlatFace"
sketch2.AttachmentOffset = App.Placement(App.Vector(0, 0, -6), App.Rotation())
sketch2.addGeometry(Part.ArcOfCircle(Part.Circle(App.Vector(-33.5, -31.8, 0), App.Vector(0, 0, 1), 24.8), math.radians(57), math.radians(123)), False)
sketch2.addGeometry(Part.LineSegment(App.Vector(-47, -11, 0), App.Vector(-47, -11.5, 0)), False)
sketch2.addGeometry(Part.LineSegment(App.Vector(-47, -11.5, 0), App.Vector(-51, -11.5, 0)), False)
sketch2.addGeometry(Part.LineSegment(App.Vector(-51, -11.5, 0), App.Vector(-51, 11.5, 0)), False)
sketch2.addGeometry(Part.LineSegment(App.Vector(-51, 11.5, 0), App.Vector(-47, 11.5, 0)), False)
sketch2.addGeometry(Part.LineSegment(App.Vector(-47, 11.5, 0), App.Vector(-47, 11, 0)), False)
sketch2.addGeometry(Part.ArcOfCircle(Part.Circle(App.Vector(-33.5, 31.8, 0), App.Vector(0, 0, 1), 24.8), math.radians(-123), math.radians(-57)), False)
sketch2.addGeometry(Part.LineSegment(App.Vector(-20, 11, 0), App.Vector(-20, 11.5, 0)), False)
sketch2.addGeometry(Part.LineSegment(App.Vector(-20, 11.5, 0), App.Vector(-17.5, 11.5, 0)), False)
sketch2.addGeometry(Part.LineSegment(App.Vector(-17.5, 11.5, 0), App.Vector(-17.5, -11.5, 0)), False)
sketch2.addGeometry(Part.LineSegment(App.Vector(-17.5, -11.5, 0), App.Vector(-20, -11.5, 0)), False)
sketch2.addGeometry(Part.LineSegment(App.Vector(-20, -11.5, 0), App.Vector(-20, -11, 0)), False)
sketch2.addGeometry(Part.LineSegment(App.Vector(20, -11, 0), App.Vector(20, -11.5, 0)), False)
sketch2.addGeometry(Part.LineSegment(App.Vector(20, -11.5, 0), App.Vector(17.5, -11.5, 0)), False)
sketch2.addGeometry(Part.LineSegment(App.Vector(17.5, -11.5, 0), App.Vector(17.5, 11.5, 0)), False)
sketch2.addGeometry(Part.LineSegment(App.Vector(17.5, 11.5, 0), App.Vector(20, 11.5, 0)), False)
sketch2.addGeometry(Part.LineSegment(App.Vector(20, 11.5, 0), App.Vector(20, 11, 0)), False)
sketch2.addGeometry(Part.ArcOfCircle(Part.Circle(App.Vector(33.5, 31.8, 0), App.Vector(0, 0, 1), 24.8), math.radians(-123), math.radians(-57)), False)
sketch2.addGeometry(Part.LineSegment(App.Vector(47, 11, 0), App.Vector(47, 11.5, 0)), False)
sketch2.addGeometry(Part.LineSegment(App.Vector(47, 11.5, 0), App.Vector(51, 11.5, 0)), False)
sketch2.addGeometry(Part.LineSegment(App.Vector(51, 11.5, 0), App.Vector(51, -11.5, 0)), False)
sketch2.addGeometry(Part.LineSegment(App.Vector(51, -11.5, 0), App.Vector(47, -11.5, 0)), False)
sketch2.addGeometry(Part.LineSegment(App.Vector(47, -11.5, 0), App.Vector(47, -11, 0)), False)
sketch2.addGeometry(Part.ArcOfCircle(Part.Circle(App.Vector(33.5, -31.8, 0), App.Vector(0, 0, 1), 24.8), math.radians(57), math.radians(123)), False)
sketch2.addConstraint(Sketcher.Constraint("Coincident", 0, 2, 1, 1))
sketch2.addConstraint(Sketcher.Constraint("Coincident", 1, 2, 2, 1))
sketch2.addConstraint(Sketcher.Constraint("Coincident", 2, 2, 3, 1))
sketch2.addConstraint(Sketcher.Constraint("Coincident", 3, 2, 4, 1))
sketch2.addConstraint(Sketcher.Constraint("Coincident", 4, 2, 5, 1))
sketch2.addConstraint(Sketcher.Constraint("Coincident", 5, 2, 6, 1))
sketch2.addConstraint(Sketcher.Constraint("Coincident", 6, 2, 7, 1))
sketch2.addConstraint(Sketcher.Constraint("Coincident", 7, 2, 8, 1))
sketch2.addConstraint(Sketcher.Constraint("Coincident", 8, 2, 9, 1))
sketch2.addConstraint(Sketcher.Constraint("Coincident", 9, 2, 10, 1))
sketch2.addConstraint(Sketcher.Constraint("Coincident", 10, 2, 11, 1))
sketch2.addConstraint(Sketcher.Constraint("Coincident", 11, 2, 0, 1))
sketch2.addConstraint(Sketcher.Constraint("Coincident", 12, 2, 13, 1))
sketch2.addConstraint(Sketcher.Constraint("Coincident", 13, 2, 14, 1))
sketch2.addConstraint(Sketcher.Constraint("Coincident", 14, 2, 15, 1))
sketch2.addConstraint(Sketcher.Constraint("Coincident", 15, 2, 16, 1))
sketch2.addConstraint(Sketcher.Constraint("Coincident", 16, 2, 17, 1))
sketch2.addConstraint(Sketcher.Constraint("Coincident", 17, 2, 18, 1))
sketch2.addConstraint(Sketcher.Constraint("Coincident", 18, 2, 19, 1))
sketch2.addConstraint(Sketcher.Constraint("Coincident", 19, 2, 20, 1))
sketch2.addConstraint(Sketcher.Constraint("Coincident", 20, 2, 21, 1))
sketch2.addConstraint(Sketcher.Constraint("Coincident", 21, 2, 22, 1))
sketch2.addConstraint(Sketcher.Constraint("Coincident", 22, 2, 23, 1))
sketch2.addConstraint(Sketcher.Constraint("Coincident", 23, 2, 12, 1))
sketch2.addConstraint(Sketcher.Constraint("Vertical", 1))
sketch2.addConstraint(Sketcher.Constraint("Horizontal", 2))
sketch2.addConstraint(Sketcher.Constraint("Vertical", 3))
sketch2.addConstraint(Sketcher.Constraint("Horizontal", 4))
sketch2.addConstraint(Sketcher.Constraint("Vertical", 5))
sketch2.addConstraint(Sketcher.Constraint("Vertical", 7))
sketch2.addConstraint(Sketcher.Constraint("Horizontal", 8))
sketch2.addConstraint(Sketcher.Constraint("Vertical", 9))
sketch2.addConstraint(Sketcher.Constraint("Horizontal", 10))
sketch2.addConstraint(Sketcher.Constraint("Vertical", 11))
sketch2.addConstraint(Sketcher.Constraint("Vertical", 12))
sketch2.addConstraint(Sketcher.Constraint("Horizontal", 13))
sketch2.addConstraint(Sketcher.Constraint("Vertical", 14))
sketch2.addConstraint(Sketcher.Constraint("Horizontal", 15))
sketch2.addConstraint(Sketcher.Constraint("Vertical", 16))
sketch2.addConstraint(Sketcher.Constraint("Vertical", 18))
sketch2.addConstraint(Sketcher.Constraint("Horizontal", 19))
sketch2.addConstraint(Sketcher.Constraint("Vertical", 20))
sketch2.addConstraint(Sketcher.Constraint("Horizontal", 21))
sketch2.addConstraint(Sketcher.Constraint("Vertical", 22))
sketch2.addConstraint(Sketcher.Constraint("Equal", 0, 6))
sketch2.addConstraint(Sketcher.Constraint("Equal", 6, 17))
sketch2.addConstraint(Sketcher.Constraint("Equal", 17, 23))
sketch2.addConstraint(Sketcher.Constraint("Symmetric", 0, 3, 17, 3, -1, 1))
sketch2.addConstraint(Sketcher.Constraint("Symmetric", 6, 3, 23, 3, -1, 1))
sketch2.addConstraint(Sketcher.Constraint("Symmetric", 7, 2, 12, 2, -1, 1))
sketch2.addConstraint(Sketcher.Constraint("Symmetric", 9, 2, 14, 2, -1, 1))
sketch2.addConstraint(Sketcher.Constraint("Symmetric", 1, 2, 18, 2, -1, 1))
sketch2.addConstraint(Sketcher.Constraint("Symmetric", 3, 2, 20, 2, -1, 1))
sketch2.addConstraint(Sketcher.Constraint("Symmetric", 6, 3, 17, 3, -2))
sketch2.addConstraint(Sketcher.Constraint("Symmetric", 10, 2, 12, 2, -2))
sketch2.addConstraint(Sketcher.Constraint("Symmetric", 4, 2, 18, 2, -2))
sketch2.addConstraint(Sketcher.Constraint("Horizontal", 5, 2, 6, 2))
sketch2.addConstraint(Sketcher.Constraint("Horizontal", 4, 2, 7, 2))
sketch2.addConstraint(Sketcher.Constraint("Horizontal", 6, 2, 16, 2))
sketch2.addConstraint(Sketcher.Constraint("Horizontal", 11, 2, 22, 2))
sketch2.addConstraint(Sketcher.Constraint("DistanceX", 2, 2, 2, 1, 4.0))
sketch2.addConstraint(Sketcher.Constraint("DistanceX", 9, 2, 13, 2, 35.0))
sketch2.addConstraint(Sketcher.Constraint("Radius", 0, 24.7812))
sketch2.addConstraint(Sketcher.Constraint("DistanceY", 3, 1, 3, 2, 23.0))
sketch2.addConstraint(Sketcher.Constraint("DistanceX", 8, 1, 8, 2, 2.5))
sketch2.addConstraint(Sketcher.Constraint("DistanceY", 1, 2, 1, 1, 0.5))
sketch2.addConstraint(Sketcher.Constraint("DistanceX", 0, 2, -1, 1, 47.0))
pad2 = body.newObject("PartDesign::Pad", "Pad001")
pad2.Profile = sketch2
pad2.Length = 45
pad2.Reversed = True

sketch3 = body.newObject("Sketcher::SketchObject", "Sketch002")
sketch3.AttachmentSupport = (doc.getObject("XZ_Plane"), [""])
sketch3.MapMode = "FlatFace"
sketch3.AttachmentOffset = App.Placement(App.Vector(0, 0, -51), App.Rotation())
sketch3.addGeometry(Part.ArcOfCircle(Part.Circle(App.Vector(33, 28, 0), App.Vector(0, 0, 1), 25), math.radians(-118), math.radians(-56)), False)
sketch3.addGeometry(Part.LineSegment(App.Vector(47, 7, 0), App.Vector(47, -7, 0)), False)
sketch3.addGeometry(Part.ArcOfCircle(Part.Circle(App.Vector(33, -28, 0), App.Vector(0, 0, 1), 25), math.radians(56), math.radians(118)), False)
sketch3.addGeometry(Part.LineSegment(App.Vector(22, -6, 0), App.Vector(22, 6, 0)), False)
sketch3.addGeometry(Part.ArcOfCircle(Part.Circle(App.Vector(-33, 28, 0), App.Vector(0, 0, 1), 25), math.radians(-124), math.radians(-62)), False)
sketch3.addGeometry(Part.LineSegment(App.Vector(-22, 6, 0), App.Vector(-22, -6, 0)), False)
sketch3.addGeometry(Part.ArcOfCircle(Part.Circle(App.Vector(-33, -28, 0), App.Vector(0, 0, 1), 25), math.radians(62), math.radians(124)), False)
sketch3.addGeometry(Part.LineSegment(App.Vector(-47, -7, 0), App.Vector(-47, 7, 0)), False)
sketch3.addConstraint(Sketcher.Constraint("Coincident", 0, 2, 1, 1))
sketch3.addConstraint(Sketcher.Constraint("Coincident", 1, 2, 2, 1))
sketch3.addConstraint(Sketcher.Constraint("Coincident", 2, 2, 3, 1))
sketch3.addConstraint(Sketcher.Constraint("Coincident", 3, 2, 0, 1))
sketch3.addConstraint(Sketcher.Constraint("Coincident", 4, 2, 5, 1))
sketch3.addConstraint(Sketcher.Constraint("Coincident", 5, 2, 6, 1))
sketch3.addConstraint(Sketcher.Constraint("Coincident", 6, 2, 7, 1))
sketch3.addConstraint(Sketcher.Constraint("Coincident", 7, 2, 4, 1))
sketch3.addConstraint(Sketcher.Constraint("Vertical", 1))
sketch3.addConstraint(Sketcher.Constraint("Vertical", 3))
sketch3.addConstraint(Sketcher.Constraint("Vertical", 5))
sketch3.addConstraint(Sketcher.Constraint("Vertical", 7))
sketch3.addConstraint(Sketcher.Constraint("Equal", 0, 2))
sketch3.addConstraint(Sketcher.Constraint("Equal", 2, 4))
sketch3.addConstraint(Sketcher.Constraint("Equal", 4, 6))
sketch3.addConstraint(Sketcher.Constraint("Symmetric", 2, 3, 4, 3, -1, 1))
sketch3.addConstraint(Sketcher.Constraint("Symmetric", 0, 3, 6, 3, -1, 1))
sketch3.addConstraint(Sketcher.Constraint("Symmetric", 0, 3, 4, 3, -2))
sketch3.addConstraint(Sketcher.Constraint("Horizontal", 3, 2, 4, 2))
sketch3.addConstraint(Sketcher.Constraint("Horizontal", 1, 2, 6, 2))
sketch3.addConstraint(Sketcher.Constraint("Radius", 0, 24.7812))
sketch3.addConstraint(Sketcher.Constraint("DistanceX", -1, 1, 0, 2, 47.0))
sketch3.addConstraint(Sketcher.Constraint("DistanceX", 4, 2, 3, 2, 43.0))
sketch3.addConstraint(Sketcher.Constraint("DistanceY", 2, 3, 2, 2, 21.8))
sketch3.addConstraint(Sketcher.Constraint("DistanceY", 1, 2, 1, 1, 14.2832))
pocket1 = body.newObject("PartDesign::Pocket", "Pocket")
pocket1.Profile = sketch3
pocket1.Length = 51
pocket1.Reversed = True

sketch4 = body.newObject("Sketcher::SketchObject", "Sketch003")
sketch4.AttachmentSupport = (doc.getObject("XZ_Plane"), [""])
sketch4.MapMode = "FlatFace"
sketch4.AttachmentOffset = App.Placement(App.Vector(0, 0, -6), App.Rotation())
sketch4.addGeometry(Part.Circle(App.Vector(-62, -82.2, 0), App.Vector(0, 0, 1), 2.1), False)
sketch4.addGeometry(Part.Circle(App.Vector(62, -82.2, 0), App.Vector(0, 0, 1), 2.1), False)
sketch4.addGeometry(Part.Circle(App.Vector(-61, 83.2, 0), App.Vector(0, 0, 1), 2.1), False)
sketch4.addGeometry(Part.Circle(App.Vector(61, 83.2, 0), App.Vector(0, 0, 1), 2.1), False)
sketch4.addGeometry(Part.Circle(App.Vector(0, 0, 0), App.Vector(0, 0, 1), 2.1), False)
sketch4.addConstraint(Sketcher.Constraint("Coincident", 4, 3, -1, 1))
sketch4.addConstraint(Sketcher.Constraint("Equal", 0, 1))
sketch4.addConstraint(Sketcher.Constraint("Equal", 1, 2))
sketch4.addConstraint(Sketcher.Constraint("Equal", 2, 3))
sketch4.addConstraint(Sketcher.Constraint("Equal", 3, 4))
sketch4.addConstraint(Sketcher.Constraint("Symmetric", 0, 3, 1, 3, -2))
sketch4.addConstraint(Sketcher.Constraint("Symmetric", 2, 3, 3, 3, -2))
sketch4.addConstraint(Sketcher.Constraint("Diameter", 0, 4.3))
sketch4.addConstraint(Sketcher.Constraint("DistanceX", 0, 3, -1, 1, 62.0))
sketch4.addConstraint(Sketcher.Constraint("DistanceX", 2, 3, -1, 1, 61.0))
sketch4.addConstraint(Sketcher.Constraint("DistanceY", 0, 3, 2, 3, 165.5))
sketch4.addConstraint(Sketcher.Constraint("DistanceY", 0, 3, -1, 1, 82.25))
pocket2 = body.newObject("PartDesign::Pocket", "Pocket001")
pocket2.Profile = sketch4
pocket2.Length = 6
pocket2.Reversed = True
doc.recompute()

fillet = body.newObject("PartDesign::Fillet", "Fillet")
fillet.Base = (pocket2, edges_at(pocket2, [
    (-64, 3, 86.25),
    (-65, 3, -85.25),
    (65, 3, -85.25),
    (64, 3, 86.25),
]))
fillet.Radius = 2

sketch5 = body.newObject("Sketcher::SketchObject", "Sketch004")
sketch5.AttachmentSupport = (doc.getObject("YZ_Plane"), [""])
sketch5.MapMode = "FlatFace"
sketch5.AttachmentOffset = App.Placement(App.Vector(0, 0, 51), App.Rotation())
sketch5.addGeometry(Part.Circle(App.Vector(41, -0.4, 0), App.Vector(0, 0, 1), 2), False)
sketch5.addGeometry(Part.Circle(App.Vector(31, -0.6, 0), App.Vector(0, 0, 1), 2), False)
sketch5.addConstraint(Sketcher.Constraint("Equal", 0, 1))
sketch5.addConstraint(Sketcher.Constraint("Diameter", 0, 4.0))
sketch5.addConstraint(Sketcher.Constraint("DistanceX", -1, 1, 0, 3, 41.0))
sketch5.addConstraint(Sketcher.Constraint("DistanceX", -1, 1, 1, 3, 31.003))
sketch5.addConstraint(Sketcher.Constraint("DistanceY", 1, 3, -1, 1, 0.625))
sketch5.addConstraint(Sketcher.Constraint("DistanceY", 0, 3, -1, 1, 0.3855))
pocket3 = body.newObject("PartDesign::Pocket", "Pocket002")
pocket3.Profile = sketch5
pocket3.Length = 4

doc.recompute()
